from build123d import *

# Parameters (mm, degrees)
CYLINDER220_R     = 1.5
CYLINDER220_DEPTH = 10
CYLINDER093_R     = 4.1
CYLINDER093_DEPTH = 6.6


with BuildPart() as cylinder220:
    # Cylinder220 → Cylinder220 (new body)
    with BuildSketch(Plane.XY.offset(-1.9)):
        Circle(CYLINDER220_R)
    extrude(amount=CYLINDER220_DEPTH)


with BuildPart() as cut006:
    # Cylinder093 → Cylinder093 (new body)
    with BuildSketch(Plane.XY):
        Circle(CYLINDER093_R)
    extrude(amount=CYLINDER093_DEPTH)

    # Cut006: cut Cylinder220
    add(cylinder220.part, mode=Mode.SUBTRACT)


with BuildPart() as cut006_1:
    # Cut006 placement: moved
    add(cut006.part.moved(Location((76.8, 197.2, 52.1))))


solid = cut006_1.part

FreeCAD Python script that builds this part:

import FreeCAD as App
import Part
import Sketcher
Q = App.Units.Quantity

doc = App.newDocument("Part")
body = doc.addObject("PartDesign::Body", "Body")

# Sketch on XY plane
sketch1 = body.newObject("Sketcher::SketchObject", "Sketch")
sketch1.AttachmentSupport = (doc.getObject("XY_Plane"), [""])
sketch1.MapMode = "FlatFace"
sketch1.AttachmentOffset = App.Placement(App.Vector(0, 0, -1.9), App.Rotation())
sketch1.addGeometry(Part.Circle(App.Vector(0, 0, 0), App.Vector(0, 0, 1), 1.5), False)
sketch1.addConstraint([
    Sketcher.Constraint("Coincident", 0, 3, -1, 1),
    Sketcher.Constraint("Diameter", 0, Q("3 mm")),
])
pad1 = body.newObject("PartDesign::Pad", "Pad")
pad1.Profile = sketch1
pad1.Length = 10
body2 = doc.addObject("PartDesign::Body", "Body001")

# Sketch on XY plane
sketch2 = body2.newObject("Sketcher::SketchObject", "Sketch001")
sketch2.AttachmentSupport = (doc.getObject("XY_Plane001"), [""])
sketch2.MapMode = "FlatFace"
sketch2.addGeometry(Part.Circle(App.Vector(0, 0, 0), App.Vector(0, 0, 1), 4.1), False)
sketch2.addConstraint([
    Sketcher.Constraint("Coincident", 0, 3, -1, 1),
    Sketcher.Constraint("Diameter", 0, Q("8.2 mm")),
])
pad2 = body2.newObject("PartDesign::Pad", "Pad001")
pad2.Profile = sketch2
pad2.Length = 6.6
doc.recompute()

boolean = body2.newObject("PartDesign::Boolean", "Boolean")
boolean.Type = "Cut"
boolean.addObjects([body])
body3 = doc.addObject("PartDesign::Body", "Body002")
doc.recompute()

body2.Placement = App.Placement(App.Vector(76.8, 197.2, 52.1), App.Rotation(App.Vector(0, 0, 1), 0))
boolean2 = body3.newObject("PartDesign::Boolean", "Boolean001")
boolean2.Type = "Fuse"
boolean2.addObjects([body2])

doc.recompute()
